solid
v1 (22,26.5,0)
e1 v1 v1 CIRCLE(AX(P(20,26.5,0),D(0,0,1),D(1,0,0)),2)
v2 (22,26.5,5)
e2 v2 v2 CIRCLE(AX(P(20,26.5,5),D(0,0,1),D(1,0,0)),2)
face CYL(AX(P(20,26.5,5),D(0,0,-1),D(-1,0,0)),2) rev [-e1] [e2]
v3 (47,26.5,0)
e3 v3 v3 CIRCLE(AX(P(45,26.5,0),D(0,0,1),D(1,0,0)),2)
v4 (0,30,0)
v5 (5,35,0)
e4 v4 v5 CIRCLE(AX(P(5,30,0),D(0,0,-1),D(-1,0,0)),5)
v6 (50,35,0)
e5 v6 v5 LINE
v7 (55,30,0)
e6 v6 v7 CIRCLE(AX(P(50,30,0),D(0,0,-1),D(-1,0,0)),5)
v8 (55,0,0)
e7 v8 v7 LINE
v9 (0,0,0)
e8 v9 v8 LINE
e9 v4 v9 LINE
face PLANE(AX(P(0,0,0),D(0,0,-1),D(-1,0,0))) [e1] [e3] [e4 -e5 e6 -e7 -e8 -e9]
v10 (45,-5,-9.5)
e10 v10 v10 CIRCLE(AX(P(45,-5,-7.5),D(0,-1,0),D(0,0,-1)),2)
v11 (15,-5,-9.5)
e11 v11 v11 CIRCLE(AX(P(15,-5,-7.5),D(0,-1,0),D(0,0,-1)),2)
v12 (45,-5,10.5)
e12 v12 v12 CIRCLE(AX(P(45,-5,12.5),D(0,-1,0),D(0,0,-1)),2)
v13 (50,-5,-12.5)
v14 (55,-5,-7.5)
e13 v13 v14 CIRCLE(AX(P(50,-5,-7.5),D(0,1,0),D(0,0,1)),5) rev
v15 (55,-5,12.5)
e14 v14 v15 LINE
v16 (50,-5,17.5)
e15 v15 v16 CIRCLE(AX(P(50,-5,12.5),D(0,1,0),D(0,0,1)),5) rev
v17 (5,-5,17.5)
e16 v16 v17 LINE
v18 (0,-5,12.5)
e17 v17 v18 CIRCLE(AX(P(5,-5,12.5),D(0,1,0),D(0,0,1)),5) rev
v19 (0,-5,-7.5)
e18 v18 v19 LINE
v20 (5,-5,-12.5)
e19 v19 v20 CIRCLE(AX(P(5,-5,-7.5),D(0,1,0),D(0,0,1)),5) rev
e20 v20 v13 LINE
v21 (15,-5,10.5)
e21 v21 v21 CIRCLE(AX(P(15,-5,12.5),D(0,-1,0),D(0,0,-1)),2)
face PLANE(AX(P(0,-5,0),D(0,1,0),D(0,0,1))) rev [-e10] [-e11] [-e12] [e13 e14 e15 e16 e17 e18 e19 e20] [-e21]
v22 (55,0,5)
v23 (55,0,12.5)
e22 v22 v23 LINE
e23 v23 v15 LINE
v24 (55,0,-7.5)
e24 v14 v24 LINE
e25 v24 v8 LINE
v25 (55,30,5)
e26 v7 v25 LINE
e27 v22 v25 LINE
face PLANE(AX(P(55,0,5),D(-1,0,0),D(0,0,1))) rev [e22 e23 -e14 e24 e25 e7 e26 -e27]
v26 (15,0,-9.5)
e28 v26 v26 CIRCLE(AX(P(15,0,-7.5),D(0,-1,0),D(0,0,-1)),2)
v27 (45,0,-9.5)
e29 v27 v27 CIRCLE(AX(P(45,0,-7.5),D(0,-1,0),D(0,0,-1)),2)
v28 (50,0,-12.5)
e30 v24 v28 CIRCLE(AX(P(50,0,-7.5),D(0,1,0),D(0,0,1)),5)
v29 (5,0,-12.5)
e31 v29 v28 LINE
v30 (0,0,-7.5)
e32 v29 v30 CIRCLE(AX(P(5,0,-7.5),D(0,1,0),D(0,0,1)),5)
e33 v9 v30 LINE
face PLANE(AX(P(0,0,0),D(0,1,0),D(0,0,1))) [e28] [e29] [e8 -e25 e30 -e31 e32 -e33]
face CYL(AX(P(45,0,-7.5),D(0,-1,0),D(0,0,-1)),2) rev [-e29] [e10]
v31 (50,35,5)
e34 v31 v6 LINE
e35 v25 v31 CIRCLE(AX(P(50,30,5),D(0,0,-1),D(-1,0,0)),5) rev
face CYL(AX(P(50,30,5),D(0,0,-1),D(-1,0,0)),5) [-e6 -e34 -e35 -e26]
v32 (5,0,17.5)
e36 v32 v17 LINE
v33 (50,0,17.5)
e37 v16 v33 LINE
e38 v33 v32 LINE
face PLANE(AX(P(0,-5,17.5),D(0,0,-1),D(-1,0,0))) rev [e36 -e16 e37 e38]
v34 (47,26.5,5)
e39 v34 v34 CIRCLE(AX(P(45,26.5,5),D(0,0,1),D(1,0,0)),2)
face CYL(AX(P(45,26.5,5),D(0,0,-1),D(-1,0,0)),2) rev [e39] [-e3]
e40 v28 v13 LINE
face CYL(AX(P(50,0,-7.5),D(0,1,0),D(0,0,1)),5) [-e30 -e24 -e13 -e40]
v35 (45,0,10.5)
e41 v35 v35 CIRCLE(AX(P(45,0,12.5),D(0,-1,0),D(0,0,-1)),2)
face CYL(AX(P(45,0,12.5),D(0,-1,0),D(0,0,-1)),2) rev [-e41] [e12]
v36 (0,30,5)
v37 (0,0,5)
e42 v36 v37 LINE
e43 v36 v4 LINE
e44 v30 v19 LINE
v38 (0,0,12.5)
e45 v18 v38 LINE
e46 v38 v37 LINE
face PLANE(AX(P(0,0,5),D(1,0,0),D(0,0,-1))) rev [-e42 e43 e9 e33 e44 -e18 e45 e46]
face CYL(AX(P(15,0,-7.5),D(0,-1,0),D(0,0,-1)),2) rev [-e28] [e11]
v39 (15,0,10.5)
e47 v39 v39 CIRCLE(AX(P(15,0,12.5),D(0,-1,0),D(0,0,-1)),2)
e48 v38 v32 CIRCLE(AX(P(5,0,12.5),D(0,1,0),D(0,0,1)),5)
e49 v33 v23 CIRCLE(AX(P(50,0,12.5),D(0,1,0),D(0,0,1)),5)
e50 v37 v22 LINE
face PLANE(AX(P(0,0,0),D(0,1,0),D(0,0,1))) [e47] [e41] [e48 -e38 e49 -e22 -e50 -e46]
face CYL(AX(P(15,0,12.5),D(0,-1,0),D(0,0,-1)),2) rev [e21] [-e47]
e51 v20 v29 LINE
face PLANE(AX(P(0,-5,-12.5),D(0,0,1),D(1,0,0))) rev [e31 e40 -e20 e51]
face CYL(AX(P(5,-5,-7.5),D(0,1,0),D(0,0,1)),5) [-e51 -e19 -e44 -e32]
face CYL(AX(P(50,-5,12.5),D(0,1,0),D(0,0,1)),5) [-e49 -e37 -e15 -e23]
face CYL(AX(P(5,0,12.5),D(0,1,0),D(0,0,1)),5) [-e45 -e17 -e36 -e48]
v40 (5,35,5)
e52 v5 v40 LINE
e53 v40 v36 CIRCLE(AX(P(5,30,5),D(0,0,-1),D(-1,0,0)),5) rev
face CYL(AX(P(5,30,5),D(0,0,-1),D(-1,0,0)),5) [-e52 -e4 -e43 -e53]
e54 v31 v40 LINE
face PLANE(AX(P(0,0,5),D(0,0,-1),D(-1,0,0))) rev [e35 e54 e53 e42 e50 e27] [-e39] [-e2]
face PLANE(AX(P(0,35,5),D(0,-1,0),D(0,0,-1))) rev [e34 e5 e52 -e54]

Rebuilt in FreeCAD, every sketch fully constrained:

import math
import FreeCAD as App
import Part
import Sketcher
Q = App.Units.Quantity


def edges_at(feature, points):
    """Names of the edges that pass closest to the given points."""
    edges = feature.Shape.Edges
    near = lambda p: min(range(len(edges)), key=lambda i: edges[i].distToShape(Part.Vertex(*p))[0])
    return sorted({f"Edge{near(p) + 1}" for p in points})


def add_polygon(sketch, points):
    """Adds a closed chain of lines whose ends are joined by coincident constraints."""
    first, n = sketch.GeometryCount, len(points)
    for a, b in zip(points, points[1:] + points[:1]):
        sketch.addGeometry(Part.LineSegment(App.Vector(*a, 0), App.Vector(*b, 0)), False)
    for i in range(n):
        sketch.addConstraint(Sketcher.Constraint("Coincident", first + i, 2, first + (i + 1) % n, 1))

doc = App.newDocument("Part")
body = doc.addObject("PartDesign::Body", "Body")

# Sketch on XY plane
sketch1 = doc.addObject("Sketcher::SketchObject", "Sketch")
body.addObject(sketch1)
sketch1.AttachmentSupport = (doc.XY_Plane, [""])
sketch1.MapMode = "FlatFace"
add_polygon(sketch1, [(0, 35), (0, 0), (55, 0), (55, 35)])  # lines 0-3
sketch1.addGeometry(Part.Circle(App.Vector(20, 26.5, 0), App.Vector(0, 0, 1), 2), False)  # 4
sketch1.addGeometry(Part.Circle(App.Vector(45, 26.5, 0), App.Vector(0, 0, 1), 2), False)  # 5
sketch1.addConstraint([
    Sketcher.Constraint("Vertical", 0),
    Sketcher.Constraint("Horizontal", 1),
    Sketcher.Constraint("Vertical", 2),
    Sketcher.Constraint("Horizontal", 3),
    Sketcher.Constraint("Coincident", 0, 2, -1, 1),
    Sketcher.Constraint("Equal", 4, 5),
    Sketcher.Constraint("Horizontal", 4, 3, 5, 3),
    Sketcher.Constraint("Diameter", 4, Q("4 mm")),
    Sketcher.Constraint("DistanceX", 1, 1, 1, 2, Q("55 mm")),
    Sketcher.Constraint("DistanceY", 0, 2, 0, 1, Q("35 mm")),
    Sketcher.Constraint("DistanceX", -1, 1, 4, 3, Q("20 mm")),
    Sketcher.Constraint("DistanceX", -1, 1, 5, 3, Q("45 mm")),
    Sketcher.Constraint("DistanceY", -1, 1, 4, 3, Q("26.5 mm")),
])
pad1 = doc.addObject("PartDesign::Pad", "Pad")
body.addObject(pad1)
pad1.Profile = sketch1
pad1.Length = 5

# Sketch on XZ plane
sketch2 = doc.addObject("Sketcher::SketchObject", "Sketch001")
body.addObject(sketch2)
sketch2.AttachmentSupport = (doc.XZ_Plane, [""])
sketch2.MapMode = "FlatFace"
add_polygon(sketch2, [(0, 18), (0, -12), (55, -12), (55, 18)])  # lines 0-3
sketch2.addConstraint([
    Sketcher.Constraint("Vertical", 0),
    Sketcher.Constraint("Horizontal", 1),
    Sketcher.Constraint("Vertical", 2),
    Sketcher.Constraint("Horizontal", 3),
    Sketcher.Constraint("PointOnObject", 0, 2, -2),
    Sketcher.Constraint("DistanceX", 1, 1, 1, 2, Q("55 mm")),
    Sketcher.Constraint("DistanceY", 0, 2, 0, 1, Q("30 mm")),
    Sketcher.Constraint("DistanceY", 0, 2, -1, 1, Q("12.5 mm")),
])
pad2 = doc.addObject("PartDesign::Pad", "Pad001")
body.addObject(pad2)
pad2.Profile = sketch2
pad2.Length = 5

# Sketch on XZ plane
sketch3 = doc.addObject("Sketcher::SketchObject", "Sketch002")
body.addObject(sketch3)
sketch3.AttachmentSupport = (doc.XZ_Plane, [""])
sketch3.MapMode = "FlatFace"
sketch3.AttachmentOffset = App.Placement(App.Vector(0, 0, 5), App.Rotation())
sketch3.addGeometry([
    Part.ArcOfCircle(Part.Circle(App.Vector(15, 12.5, 0), App.Vector(0, 0, 1), 2), math.radians(0), math.radians(270)),  # 0
    Part.ArcOfCircle(Part.Circle(App.Vector(15, 12.5, 0), App.Vector(0, 0, 1), 2), math.radians(-90), math.radians(0)),  # 1
    Part.ArcOfCircle(Part.Circle(App.Vector(45, 12.5, 0), App.Vector(0, 0, 1), 2), math.radians(-180), math.radians(-90)),  # 2
    Part.ArcOfCircle(Part.Circle(App.Vector(45, 12.5, 0), App.Vector(0, 0, 1), 2), math.radians(-90), math.radians(0)),  # 3
    Part.ArcOfCircle(Part.Circle(App.Vector(45, 12.5, 0), App.Vector(0, 0, 1), 2), math.radians(0), math.radians(180)),  # 4
    Part.ArcOfCircle(Part.Circle(App.Vector(45, -7.5, 0), App.Vector(0, 0, 1), 2), math.radians(90), math.radians(180)),  # 5
    Part.ArcOfCircle(Part.Circle(App.Vector(45, -7.5, 0), App.Vector(0, 0, 1), 2), math.radians(180), math.radians(360)),  # 6
    Part.ArcOfCircle(Part.Circle(App.Vector(45, -7.5, 0), App.Vector(0, 0, 1), 2), math.radians(0), math.radians(90)),  # 7
    Part.ArcOfCircle(Part.Circle(App.Vector(15, -7.5, 0), App.Vector(0, 0, 1), 2), math.radians(0), math.radians(90)),  # 8
    Part.ArcOfCircle(Part.Circle(App.Vector(15, -7.5, 0), App.Vector(0, 0, 1), 2), math.radians(90), math.radians(360)),  # 9
], False)
sketch3.addConstraint([
    Sketcher.Constraint("Tangent", 0, 1, 1, 2),
    Sketcher.Constraint("Coincident", 1, 1, 0, 2),
    Sketcher.Constraint("Tangent", 2, 2, 3, 1),
    Sketcher.Constraint("Tangent", 3, 2, 4, 1),
    Sketcher.Constraint("Tangent", 4, 2, 2, 1),
    Sketcher.Constraint("Tangent", 5, 2, 6, 1),
    Sketcher.Constraint("Tangent", 6, 2, 7, 1),
    Sketcher.Constraint("Tangent", 7, 2, 5, 1),
    Sketcher.Constraint("Tangent", 8, 1, 9, 2),
    Sketcher.Constraint("Coincident", 9, 1, 8, 2),
    Sketcher.Constraint("Equal", 1, 2),
    Sketcher.Constraint("Equal", 4, 5),
    Sketcher.Constraint("Equal", 7, 8),
    Sketcher.Constraint("Horizontal", 1, 3, 2, 3),
    Sketcher.Constraint("Horizontal", 7, 3, 8, 3),
    Sketcher.Constraint("Horizontal", 4, 3, 0, 1),
    Sketcher.Constraint("Horizontal", 0, 1, 3, 2),
    Sketcher.Constraint("Horizontal", 3, 2, 4, 2),
    Sketcher.Constraint("Horizontal", 9, 3, 5, 2),
    Sketcher.Constraint("Horizontal", 5, 2, 6, 2),
    Sketcher.Constraint("Horizontal", 6, 2, 8, 1),
    Sketcher.Constraint("Vertical", 4, 3, 5, 3),
    Sketcher.Constraint("Vertical", 1, 3, 8, 3),
    Sketcher.Constraint("Vertical", 9, 3, 1, 1),
    Sketcher.Constraint("Vertical", 7, 3, 2, 2),
    Sketcher.Constraint("Vertical", 2, 2, 7, 2),
    Sketcher.Constraint("Vertical", 1, 1, 9, 1),
    Sketcher.Constraint("Radius", 0, Q("2 mm")),
    Sketcher.Constraint("DistanceX", -1, 1, 0, 3, Q("15 mm")),
    Sketcher.Constraint("DistanceX", -1, 1, 2, 3, Q("45 mm")),
    Sketcher.Constraint("DistanceY", 5, 3, 4, 3, Q("20 mm")),
    Sketcher.Constraint("DistanceY", -1, 1, 0, 3, Q("12.5 mm")),
])
pocket1 = doc.addObject("PartDesign::Pocket", "Pocket")
body.addObject(pocket1)
pocket1.Profile = sketch3
pocket1.Length = 5
doc.recompute()

fillet = doc.addObject("PartDesign::Fillet", "Fillet")
body.addObject(fillet)
fillet.Base = (pocket1, edges_at(pocket1, [
    (0, -2.5, 17.5),
    (0, -2.5, -12.5),
    (55, -2.5, -12.5),
    (55, -2.5, 17.5),
    (0, 35, 2.5),
    (55, 35, 2.5),
]))
fillet.Radius = 5

doc.recompute()
